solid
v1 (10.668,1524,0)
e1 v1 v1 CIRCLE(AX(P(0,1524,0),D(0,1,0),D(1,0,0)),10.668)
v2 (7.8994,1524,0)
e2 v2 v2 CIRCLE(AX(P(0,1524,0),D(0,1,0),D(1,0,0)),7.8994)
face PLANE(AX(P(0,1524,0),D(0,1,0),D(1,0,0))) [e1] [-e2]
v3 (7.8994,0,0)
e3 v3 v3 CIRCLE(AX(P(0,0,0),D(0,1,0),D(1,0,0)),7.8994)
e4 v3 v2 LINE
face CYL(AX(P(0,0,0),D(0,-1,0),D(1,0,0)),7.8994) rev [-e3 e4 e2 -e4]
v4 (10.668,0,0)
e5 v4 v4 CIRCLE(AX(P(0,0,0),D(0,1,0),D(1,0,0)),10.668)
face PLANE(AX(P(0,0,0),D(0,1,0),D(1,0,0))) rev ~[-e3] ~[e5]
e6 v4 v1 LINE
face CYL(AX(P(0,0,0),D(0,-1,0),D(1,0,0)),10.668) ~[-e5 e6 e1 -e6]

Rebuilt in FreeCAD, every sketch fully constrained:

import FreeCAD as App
import Part
import Sketcher

V = App.Vector
Q = App.Units.Quantity

doc = App.newDocument("Part")
params = doc.addObject("Spreadsheet::Sheet", "Params")
for row, (alias, value) in enumerate([
    ("sketch1_diameter", "0.84 in"),
    ("sketch1_diameter2", "0.622 in"),
    ("pad1_length", "60 in"),
], start=1):
    params.set(f"A{row}", alias)
    params.set(f"B{row}", "=" + value)
    params.setAlias(f"B{row}", alias)

body = doc.addObject("PartDesign::Body", "Body")

# Sketch on XZ plane
sketch1 = body.newObject("Sketcher::SketchObject", "Sketch")
sketch1.AttachmentSupport = (doc.getObject("XZ_Plane"), [""])
sketch1.MapMode = "FlatFace"
sketch1.addGeometry(Part.Circle(V(0, 0, 0), V(0, 0, 1), 11), False)
sketch1.addGeometry(Part.Circle(V(0, 0, 0), V(0, 0, 1), 8), False)
sketch1.addConstraint(Sketcher.Constraint("Coincident", 0, 3, -1, 1))
sketch1.addConstraint(Sketcher.Constraint("Coincident", 1, 3, -1, 1))
sketch1.addConstraint(Sketcher.Constraint("Diameter", 0, Q("0.84 in")))
sketch1.addConstraint(Sketcher.Constraint("Diameter", 1, Q("0.622 in")))
sketch1.setExpression("Constraints[2]", "Params.sketch1_diameter")
sketch1.setExpression("Constraints[3]", "Params.sketch1_diameter2")
pad1 = body.newObject("PartDesign::Pad", "Pad")
pad1.Profile = sketch1
pad1.setExpression("Length", "Params.pad1_length")
pad1.Reversed = True

doc.recompute()
